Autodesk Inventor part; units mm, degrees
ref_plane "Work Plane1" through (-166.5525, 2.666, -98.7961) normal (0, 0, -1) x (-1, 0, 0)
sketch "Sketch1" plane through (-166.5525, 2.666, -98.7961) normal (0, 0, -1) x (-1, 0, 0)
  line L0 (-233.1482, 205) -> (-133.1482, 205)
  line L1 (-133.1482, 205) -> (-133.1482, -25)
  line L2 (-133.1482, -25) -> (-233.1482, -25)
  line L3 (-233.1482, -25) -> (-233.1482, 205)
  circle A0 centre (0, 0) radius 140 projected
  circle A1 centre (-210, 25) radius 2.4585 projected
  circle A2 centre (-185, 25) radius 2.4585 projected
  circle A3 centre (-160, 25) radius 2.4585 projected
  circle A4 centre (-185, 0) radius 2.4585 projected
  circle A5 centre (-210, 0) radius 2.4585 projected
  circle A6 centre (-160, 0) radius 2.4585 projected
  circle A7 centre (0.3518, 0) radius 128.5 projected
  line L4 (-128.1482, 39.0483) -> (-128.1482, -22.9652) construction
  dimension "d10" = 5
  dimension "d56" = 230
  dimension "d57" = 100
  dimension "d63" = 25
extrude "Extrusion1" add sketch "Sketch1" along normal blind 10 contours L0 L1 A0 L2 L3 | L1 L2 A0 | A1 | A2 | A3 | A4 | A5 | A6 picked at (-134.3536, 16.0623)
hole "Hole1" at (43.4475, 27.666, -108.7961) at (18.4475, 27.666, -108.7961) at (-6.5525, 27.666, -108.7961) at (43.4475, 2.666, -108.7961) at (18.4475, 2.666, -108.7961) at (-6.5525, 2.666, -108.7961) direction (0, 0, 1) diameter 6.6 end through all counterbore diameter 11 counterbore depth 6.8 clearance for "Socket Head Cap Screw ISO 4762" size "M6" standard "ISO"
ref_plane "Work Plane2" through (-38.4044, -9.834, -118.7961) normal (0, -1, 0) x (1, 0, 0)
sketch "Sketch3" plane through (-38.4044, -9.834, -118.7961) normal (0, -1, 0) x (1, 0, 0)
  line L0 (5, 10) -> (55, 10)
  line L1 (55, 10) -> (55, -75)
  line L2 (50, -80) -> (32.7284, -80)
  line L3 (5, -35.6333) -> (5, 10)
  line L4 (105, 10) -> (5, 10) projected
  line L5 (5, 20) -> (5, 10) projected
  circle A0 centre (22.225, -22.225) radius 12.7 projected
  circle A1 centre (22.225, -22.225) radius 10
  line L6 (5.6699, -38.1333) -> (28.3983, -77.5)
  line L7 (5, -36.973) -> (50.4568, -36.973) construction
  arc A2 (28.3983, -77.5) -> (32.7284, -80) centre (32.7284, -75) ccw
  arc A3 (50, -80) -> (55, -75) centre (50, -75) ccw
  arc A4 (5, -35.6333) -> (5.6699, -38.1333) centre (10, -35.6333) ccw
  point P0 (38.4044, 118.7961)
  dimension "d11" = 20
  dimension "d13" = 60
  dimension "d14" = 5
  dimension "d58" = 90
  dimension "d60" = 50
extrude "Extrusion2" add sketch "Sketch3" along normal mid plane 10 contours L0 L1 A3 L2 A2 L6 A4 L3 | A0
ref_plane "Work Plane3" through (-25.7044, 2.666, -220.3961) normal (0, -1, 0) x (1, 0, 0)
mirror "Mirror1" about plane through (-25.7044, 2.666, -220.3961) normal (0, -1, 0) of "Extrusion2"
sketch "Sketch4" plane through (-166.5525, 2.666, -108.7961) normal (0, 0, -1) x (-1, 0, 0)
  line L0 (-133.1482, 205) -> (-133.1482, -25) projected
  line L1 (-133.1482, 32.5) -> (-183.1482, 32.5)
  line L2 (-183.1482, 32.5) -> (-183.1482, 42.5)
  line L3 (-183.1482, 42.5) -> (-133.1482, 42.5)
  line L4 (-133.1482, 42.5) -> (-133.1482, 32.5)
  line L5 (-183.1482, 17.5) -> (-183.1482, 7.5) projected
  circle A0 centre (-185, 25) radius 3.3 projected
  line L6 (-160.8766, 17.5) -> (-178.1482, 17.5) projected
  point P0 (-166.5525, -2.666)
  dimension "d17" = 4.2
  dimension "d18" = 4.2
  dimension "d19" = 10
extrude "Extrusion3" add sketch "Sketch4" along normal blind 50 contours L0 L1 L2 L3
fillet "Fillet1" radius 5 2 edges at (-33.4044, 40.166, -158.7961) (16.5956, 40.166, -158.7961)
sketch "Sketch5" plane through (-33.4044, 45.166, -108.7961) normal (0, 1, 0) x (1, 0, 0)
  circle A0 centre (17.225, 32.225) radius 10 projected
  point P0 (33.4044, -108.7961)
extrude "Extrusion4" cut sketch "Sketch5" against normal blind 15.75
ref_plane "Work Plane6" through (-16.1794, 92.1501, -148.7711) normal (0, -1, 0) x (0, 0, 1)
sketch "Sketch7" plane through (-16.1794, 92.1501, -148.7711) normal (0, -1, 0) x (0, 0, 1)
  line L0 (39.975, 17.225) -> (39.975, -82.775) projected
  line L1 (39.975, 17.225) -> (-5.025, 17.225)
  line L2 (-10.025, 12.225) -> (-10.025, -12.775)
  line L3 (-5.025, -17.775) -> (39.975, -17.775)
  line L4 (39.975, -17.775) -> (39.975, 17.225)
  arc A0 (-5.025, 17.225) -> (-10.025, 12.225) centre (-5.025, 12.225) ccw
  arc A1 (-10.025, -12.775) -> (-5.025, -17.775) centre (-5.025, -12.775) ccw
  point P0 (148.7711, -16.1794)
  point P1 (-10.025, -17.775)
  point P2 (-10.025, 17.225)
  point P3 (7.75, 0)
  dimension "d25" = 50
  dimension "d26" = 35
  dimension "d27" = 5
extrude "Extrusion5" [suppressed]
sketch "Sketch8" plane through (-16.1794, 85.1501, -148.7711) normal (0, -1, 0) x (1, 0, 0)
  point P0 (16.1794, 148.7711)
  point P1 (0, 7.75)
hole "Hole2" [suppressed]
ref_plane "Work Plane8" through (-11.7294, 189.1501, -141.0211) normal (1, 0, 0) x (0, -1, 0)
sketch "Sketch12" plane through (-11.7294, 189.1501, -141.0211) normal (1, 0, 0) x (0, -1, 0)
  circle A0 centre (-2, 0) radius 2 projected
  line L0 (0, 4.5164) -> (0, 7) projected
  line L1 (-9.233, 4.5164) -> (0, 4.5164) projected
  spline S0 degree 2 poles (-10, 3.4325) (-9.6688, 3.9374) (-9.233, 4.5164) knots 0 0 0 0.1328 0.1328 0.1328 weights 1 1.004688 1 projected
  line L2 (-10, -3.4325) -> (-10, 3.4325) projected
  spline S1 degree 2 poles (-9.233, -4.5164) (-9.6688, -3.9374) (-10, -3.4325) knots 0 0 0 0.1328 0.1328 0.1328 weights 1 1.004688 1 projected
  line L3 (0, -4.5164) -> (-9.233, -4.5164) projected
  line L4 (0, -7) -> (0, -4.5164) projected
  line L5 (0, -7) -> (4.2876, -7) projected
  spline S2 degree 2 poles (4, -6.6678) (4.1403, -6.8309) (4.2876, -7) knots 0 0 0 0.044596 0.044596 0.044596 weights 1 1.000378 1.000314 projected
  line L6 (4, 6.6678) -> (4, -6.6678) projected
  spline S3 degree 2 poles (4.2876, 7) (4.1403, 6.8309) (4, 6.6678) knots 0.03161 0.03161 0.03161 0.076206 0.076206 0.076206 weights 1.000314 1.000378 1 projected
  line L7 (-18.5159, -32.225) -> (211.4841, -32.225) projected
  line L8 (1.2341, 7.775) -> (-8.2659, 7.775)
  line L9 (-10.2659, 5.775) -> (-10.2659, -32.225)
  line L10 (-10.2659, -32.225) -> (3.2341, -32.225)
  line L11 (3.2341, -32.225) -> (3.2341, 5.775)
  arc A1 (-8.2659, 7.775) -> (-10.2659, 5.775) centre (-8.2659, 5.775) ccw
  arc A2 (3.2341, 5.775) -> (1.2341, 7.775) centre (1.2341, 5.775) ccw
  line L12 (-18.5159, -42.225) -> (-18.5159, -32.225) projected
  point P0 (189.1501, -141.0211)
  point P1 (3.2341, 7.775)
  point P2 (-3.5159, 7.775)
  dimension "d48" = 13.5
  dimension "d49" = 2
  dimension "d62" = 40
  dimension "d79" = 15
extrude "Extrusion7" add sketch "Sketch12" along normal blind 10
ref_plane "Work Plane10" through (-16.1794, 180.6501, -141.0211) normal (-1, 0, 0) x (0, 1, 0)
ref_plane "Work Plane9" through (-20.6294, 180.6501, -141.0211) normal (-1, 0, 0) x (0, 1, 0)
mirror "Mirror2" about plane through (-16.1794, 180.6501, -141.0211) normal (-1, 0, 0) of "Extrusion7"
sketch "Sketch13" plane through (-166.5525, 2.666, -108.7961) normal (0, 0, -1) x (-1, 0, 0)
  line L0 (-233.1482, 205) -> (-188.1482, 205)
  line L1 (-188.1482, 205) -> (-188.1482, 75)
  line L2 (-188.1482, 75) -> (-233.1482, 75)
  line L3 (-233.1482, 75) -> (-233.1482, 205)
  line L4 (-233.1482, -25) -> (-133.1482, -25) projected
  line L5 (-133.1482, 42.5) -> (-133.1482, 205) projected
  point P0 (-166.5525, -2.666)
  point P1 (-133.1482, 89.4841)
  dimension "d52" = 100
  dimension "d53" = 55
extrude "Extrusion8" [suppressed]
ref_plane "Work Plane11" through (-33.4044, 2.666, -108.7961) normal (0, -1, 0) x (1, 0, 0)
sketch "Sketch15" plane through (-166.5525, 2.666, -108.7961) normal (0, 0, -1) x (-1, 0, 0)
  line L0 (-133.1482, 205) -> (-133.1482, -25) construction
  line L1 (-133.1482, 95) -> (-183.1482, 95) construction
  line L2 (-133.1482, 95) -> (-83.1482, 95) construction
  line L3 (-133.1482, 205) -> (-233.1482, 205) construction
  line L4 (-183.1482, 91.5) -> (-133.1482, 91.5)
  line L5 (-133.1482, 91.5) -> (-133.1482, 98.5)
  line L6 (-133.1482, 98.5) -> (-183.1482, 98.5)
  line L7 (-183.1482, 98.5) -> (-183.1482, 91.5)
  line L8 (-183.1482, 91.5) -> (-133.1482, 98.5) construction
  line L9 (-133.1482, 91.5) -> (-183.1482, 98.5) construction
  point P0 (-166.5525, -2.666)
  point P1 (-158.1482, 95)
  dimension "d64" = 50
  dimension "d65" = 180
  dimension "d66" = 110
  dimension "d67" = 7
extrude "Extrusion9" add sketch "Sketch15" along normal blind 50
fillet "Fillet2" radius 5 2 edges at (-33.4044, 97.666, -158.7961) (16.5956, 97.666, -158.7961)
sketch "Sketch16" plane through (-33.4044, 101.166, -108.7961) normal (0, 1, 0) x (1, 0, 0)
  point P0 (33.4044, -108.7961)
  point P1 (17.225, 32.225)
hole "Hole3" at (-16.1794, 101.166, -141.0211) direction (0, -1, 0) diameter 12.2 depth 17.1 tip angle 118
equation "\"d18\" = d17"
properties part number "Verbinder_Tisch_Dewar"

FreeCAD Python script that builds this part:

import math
import FreeCAD as App
import Part
import Sketcher
Q = App.Units.Quantity


def edges_at(feature, points):
    """Names of the edges that pass closest to the given points."""
    edges = feature.Shape.Edges
    near = lambda p: min(range(len(edges)), key=lambda i: edges[i].distToShape(Part.Vertex(*p))[0])
    return sorted({f"Edge{near(p) + 1}" for p in points})


def add_polygon(sketch, points):
    """Adds a closed chain of lines whose ends are joined by coincident constraints."""
    first, n = sketch.GeometryCount, len(points)
    for a, b in zip(points, points[1:] + points[:1]):
        sketch.addGeometry(Part.LineSegment(App.Vector(*a, 0), App.Vector(*b, 0)), False)
    for i in range(n):
        sketch.addConstraint(Sketcher.Constraint("Coincident", first + i, 2, first + (i + 1) % n, 1))

doc = App.newDocument("Part")
body = doc.addObject("PartDesign::Body", "Body")

# Sketch on XY plane
sketch1 = body.newObject("Sketcher::SketchObject", "Sketch")
sketch1.AttachmentSupport = (doc.getObject("XY_Plane"), [""])
sketch1.MapMode = "FlatFace"
sketch1.AttachmentOffset = App.Placement(App.Vector(0, 0, -98.7961), App.Rotation())
add_polygon(sketch1, [(-33, 208), (67, 208), (67, -22), (-33, -22)])  # lines 0-3
sketch1.addConstraint([
    Sketcher.Constraint("Horizontal", 0),
    Sketcher.Constraint("Vertical", 1),
    Sketcher.Constraint("Horizontal", 2),
    Sketcher.Constraint("Vertical", 3),
    Sketcher.Constraint("DistanceX", 0, 1, 0, 2, 100.0),
    Sketcher.Constraint("DistanceY", 1, 2, 1, 1, 230.0),
    Sketcher.Constraint("DistanceY", -1, 1, 0, 2, 207.666),
    Sketcher.Constraint("DistanceX", -1, 1, 0, 2, 66.5957),
])
pad1 = body.newObject("PartDesign::Pad", "Pad")
pad1.Profile = sketch1
pad1.Length = 10
pad1.Reversed = True

# Sketch on XY plane
sketch2 = body.newObject("Sketcher::SketchObject", "Sketch001")
sketch2.AttachmentSupport = (doc.getObject("XY_Plane"), [""])
sketch2.MapMode = "FlatFace"
sketch2.AttachmentOffset = App.Placement(App.Vector(0, 0, -108.7961), App.Rotation())
sketch2.addGeometry([
    Part.Circle(App.Vector(43.4, 27.7, 0), App.Vector(0, 0, 1), 3.3),  # 0
    Part.Circle(App.Vector(18.4, 27.7, 0), App.Vector(0, 0, 1), 3.3),  # 1
    Part.Circle(App.Vector(-6.6, 27.7, 0), App.Vector(0, 0, 1), 3.3),  # 2
    Part.Circle(App.Vector(43.4, 2.7, 0), App.Vector(0, 0, 1), 3.3),  # 3
    Part.Circle(App.Vector(18.4, 2.7, 0), App.Vector(0, 0, 1), 3.3),  # 4
    Part.Circle(App.Vector(-6.6, 2.7, 0), App.Vector(0, 0, 1), 3.3),  # 5
], False)
sketch2.addConstraint([
    Sketcher.Constraint("Equal", 0, 1),
    Sketcher.Constraint("Equal", 1, 2),
    Sketcher.Constraint("Equal", 2, 3),
    Sketcher.Constraint("Equal", 3, 4),
    Sketcher.Constraint("Equal", 4, 5),
    Sketcher.Constraint("Horizontal", 0, 3, 1, 3),
    Sketcher.Constraint("Horizontal", 1, 3, 2, 3),
    Sketcher.Constraint("Horizontal", 3, 3, 4, 3),
    Sketcher.Constraint("Horizontal", 4, 3, 5, 3),
    Sketcher.Constraint("Vertical", 0, 3, 3, 3),
    Sketcher.Constraint("Vertical", 1, 3, 4, 3),
    Sketcher.Constraint("Vertical", 2, 3, 5, 3),
    Sketcher.Constraint("Diameter", 0, 6.6),
    Sketcher.Constraint("DistanceX", 1, 3, 0, 3, 25.0),
    Sketcher.Constraint("DistanceX", 2, 3, 1, 3, 25.0),
    Sketcher.Constraint("DistanceY", 3, 3, 0, 3, 25.0),
    Sketcher.Constraint("DistanceY", -1, 1, 0, 3, 27.666),
    Sketcher.Constraint("DistanceX", -1, 1, 0, 3, 43.4475),
])
doc.recompute()
hole = body.newObject("PartDesign::Hole", "Hole")
hole.Profile = sketch2
hole.ThreadType = "None"
hole.Diameter = 6.6
hole.DepthType = "ThroughAll"
hole.HoleCutType = "Counterbore"
hole.HoleCutDiameter = 11
hole.HoleCutDepth = 6.8
hole.Reversed = True

# Sketch on XZ plane
sketch3 = body.newObject("Sketcher::SketchObject", "Sketch002")
sketch3.AttachmentSupport = (doc.getObject("XZ_Plane"), [""])
sketch3.MapMode = "FlatFace"
sketch3.AttachmentOffset = App.Placement(App.Vector(0, 0, 9.834), App.Rotation())
sketch3.addGeometry([
    Part.LineSegment(App.Vector(16.6, -108.8, 0), App.Vector(-33.4, -108.8, 0)),  # 0
    Part.LineSegment(App.Vector(-33.4, -108.8, 0), App.Vector(-33.4, -154.4, 0)),  # 1
    Part.ArcOfCircle(Part.Circle(App.Vector(-28.4, -154.4, 0), App.Vector(0, 0, 1), 5), math.radians(180), math.radians(210)),  # 2
    Part.LineSegment(App.Vector(-32.7, -156.9, 0), App.Vector(-10, -196.3, 0)),  # 3
    Part.ArcOfCircle(Part.Circle(App.Vector(-5.7, -193.8, 0), App.Vector(0, 0, 1), 5), math.radians(-150), math.radians(-90)),  # 4
    Part.LineSegment(App.Vector(-5.7, -198.8, 0), App.Vector(11.6, -198.8, 0)),  # 5
    Part.ArcOfCircle(Part.Circle(App.Vector(11.6, -193.8, 0), App.Vector(0, 0, 1), 5), math.radians(-90), math.radians(0)),  # 6
    Part.LineSegment(App.Vector(16.6, -193.8, 0), App.Vector(16.6, -108.8, 0)),  # 7
    Part.Circle(App.Vector(-16.2, -141, 0), App.Vector(0, 0, 1), 10),  # 8
], False)
sketch3.addConstraint([
    Sketcher.Constraint("Coincident", 0, 2, 1, 1),
    Sketcher.Constraint("Tangent", 1, 2, 2, 1),
    Sketcher.Constraint("Tangent", 2, 2, 3, 1),
    Sketcher.Constraint("Tangent", 3, 2, 4, 1),
    Sketcher.Constraint("Tangent", 4, 2, 5, 1),
    Sketcher.Constraint("Tangent", 5, 2, 6, 1),
    Sketcher.Constraint("Tangent", 6, 2, 7, 1),
    Sketcher.Constraint("Coincident", 7, 2, 0, 1),
    Sketcher.Constraint("Horizontal", 0),
    Sketcher.Constraint("Vertical", 1),
    Sketcher.Constraint("Horizontal", 5),
    Sketcher.Constraint("Vertical", 7),
    Sketcher.Constraint("Equal", 2, 4),
    Sketcher.Constraint("Equal", 4, 6),
    Sketcher.Constraint("Diameter", 8, 20.0),
    Sketcher.Constraint("Radius", 2, 5.0),
    Sketcher.Constraint("DistanceX", 0, 2, 0, 1, 50.0),
    Sketcher.Constraint("Angle", 3, Q("-60 deg")),
    Sketcher.Constraint("DistanceY", 7, 1, 7, 2, 85.0),
    Sketcher.Constraint("DistanceX", 5, 1, 5, 2, 17.2716),
    Sketcher.Constraint("DistanceX", 4, 3, -1, 1, 5.676),
    Sketcher.Constraint("DistanceY", 4, 3, -1, 1, 193.796),
    Sketcher.Constraint("DistanceY", 8, 3, -1, 1, 141.021),
    Sketcher.Constraint("DistanceX", 2, 3, 8, 3, 12.225),
])
pad2 = body.newObject("PartDesign::Pad", "Pad001")
pad2.Profile = sketch3
pad2.Length = 10
pad2.Midplane = True
doc.recompute()

datumplane = body.newObject("PartDesign::Plane", "DatumPlane")
datumplane.AttachmentSupport = (doc.getObject("XZ_Plane"), [""])
datumplane.MapMode = "FlatFace"
datumplane.AttachmentOffset = App.Placement(App.Vector(0, 0, -2.666), App.Rotation())
mirrored = body.newObject("PartDesign::Mirrored", "Mirrored")
mirrored.Originals = [pad2]
mirrored.MirrorPlane = (datumplane, [""])
body.Tip = mirrored

# Sketch on XY plane
sketch4 = body.newObject("Sketcher::SketchObject", "Sketch003")
sketch4.AttachmentSupport = (doc.getObject("XY_Plane"), [""])
sketch4.MapMode = "FlatFace"
sketch4.AttachmentOffset = App.Placement(App.Vector(0, 0, -108.7961), App.Rotation())
add_polygon(sketch4, [(-33, 35), (-33, 45), (17, 45), (17, 35)])  # lines 0-3
sketch4.addConstraint([
    Sketcher.Constraint("Vertical", 0),
    Sketcher.Constraint("Horizontal", 1),
    Sketcher.Constraint("Vertical", 2),
    Sketcher.Constraint("Horizontal", 3),
    Sketcher.Constraint("DistanceY", 0, 1, 0, 2, 10.0),
    Sketcher.Constraint("DistanceX", 1, 1, 1, 2, 50.0),
    Sketcher.Constraint("DistanceY", -1, 1, 0, 2, 45.166),
    Sketcher.Constraint("DistanceX", 0, 2, -1, 1, 33.4043),
])
pad3 = body.newObject("PartDesign::Pad", "Pad002")
pad3.Profile = sketch4
pad3.Length = 50
pad3.Reversed = True
doc.recompute()

fillet = body.newObject("PartDesign::Fillet", "Fillet")
fillet.Base = (pad3, edges_at(pad3, [(-33.404, 40.166, -158.796), (16.596, 40.166, -158.796)]))
fillet.Radius = 5

# Sketch on XZ plane
sketch5 = body.newObject("Sketcher::SketchObject", "Sketch004")
sketch5.AttachmentSupport = (doc.getObject("XZ_Plane"), [""])
sketch5.MapMode = "FlatFace"
sketch5.AttachmentOffset = App.Placement(App.Vector(0, 0, -45.166), App.Rotation())
sketch5.addGeometry(Part.Circle(App.Vector(-16, -141, 0), App.Vector(0, 0, 1), 10), False)
sketch5.addConstraint([
    Sketcher.Constraint("Diameter", 0, 20.0),
    Sketcher.Constraint("DistanceY", 0, 3, -1, 1, 141.021),
    Sketcher.Constraint("DistanceX", 0, 3, -1, 1, 16.1794),
])
pocket1 = body.newObject("PartDesign::Pocket", "Pocket")
pocket1.Profile = sketch5
pocket1.Length = 15.75
pocket1.Reversed = True

# Sketch on YZ plane
sketch6 = body.newObject("Sketcher::SketchObject", "Sketch005")
sketch6.AttachmentSupport = (doc.getObject("YZ_Plane"), [""])
sketch6.MapMode = "FlatFace"
sketch6.AttachmentOffset = App.Placement(App.Vector(0, 0, -11.7294), App.Rotation())
sketch6.addGeometry([
    Part.LineSegment(App.Vector(199.4, -146.8, 0), App.Vector(199.4, -108.8, 0)),  # 0
    Part.LineSegment(App.Vector(199.4, -108.8, 0), App.Vector(185.9, -108.8, 0)),  # 1
    Part.LineSegment(App.Vector(185.9, -108.8, 0), App.Vector(185.9, -146.8, 0)),  # 2
    Part.ArcOfCircle(Part.Circle(App.Vector(187.9, -146.8, 0), App.Vector(0, 0, 1), 2), math.radians(180), math.radians(270)),  # 3
    Part.LineSegment(App.Vector(187.9, -148.8, 0), App.Vector(197.4, -148.8, 0)),  # 4
    Part.ArcOfCircle(Part.Circle(App.Vector(197.4, -146.8, 0), App.Vector(0, 0, 1), 2), math.radians(-90), math.radians(0)),  # 5
    Part.Circle(App.Vector(191.2, -141, 0), App.Vector(0, 0, 1), 2),  # 6
], False)
sketch6.addConstraint([
    Sketcher.Constraint("Coincident", 0, 2, 1, 1),
    Sketcher.Constraint("Coincident", 1, 2, 2, 1),
    Sketcher.Constraint("Tangent", 2, 2, 3, 1),
    Sketcher.Constraint("Tangent", 3, 2, 4, 1),
    Sketcher.Constraint("Tangent", 4, 2, 5, 1),
    Sketcher.Constraint("Tangent", 5, 2, 0, 1),
    Sketcher.Constraint("Vertical", 0),
    Sketcher.Constraint("Horizontal", 1),
    Sketcher.Constraint("Vertical", 2),
    Sketcher.Constraint("Horizontal", 4),
    Sketcher.Constraint("Equal", 3, 5),
    Sketcher.Constraint("Equal", 5, 6),
    Sketcher.Constraint("Diameter", 6, 4.0),
    Sketcher.Constraint("DistanceX", 1, 2, 1, 1, 13.5),
    Sketcher.Constraint("DistanceY", 3, 2, 1, 2, 40.0),
    Sketcher.Constraint("DistanceX", -1, 1, 6, 3, 191.15),
    Sketcher.Constraint("DistanceX", -1, 1, 3, 3, 187.916),
    Sketcher.Constraint("DistanceY", 3, 3, -1, 1, 146.796),
    Sketcher.Constraint("DistanceY", 6, 3, -1, 1, 141.021),
])
pad4 = body.newObject("PartDesign::Pad", "Pad003")
pad4.Profile = sketch6
pad4.Length = 10
doc.recompute()

datumplane2 = body.newObject("PartDesign::Plane", "DatumPlane001")
datumplane2.AttachmentSupport = (doc.getObject("YZ_Plane"), [""])
datumplane2.MapMode = "FlatFace"
datumplane2.AttachmentOffset = App.Placement(App.Vector(0, 0, -16.1794), App.Rotation())
mirrored2 = body.newObject("PartDesign::Mirrored", "Mirrored001")
mirrored2.Originals = [pad4]
mirrored2.MirrorPlane = (datumplane2, [""])
body.Tip = mirrored2

# Sketch on XY plane
sketch7 = body.newObject("Sketcher::SketchObject", "Sketch006")
sketch7.AttachmentSupport = (doc.getObject("XY_Plane"), [""])
sketch7.MapMode = "FlatFace"
sketch7.AttachmentOffset = App.Placement(App.Vector(0, 0, -108.7961), App.Rotation())
add_polygon(sketch7, [(17, 101), (17, 94), (-33, 94), (-33, 101)])  # lines 0-3
sketch7.addConstraint([
    Sketcher.Constraint("Vertical", 0),
    Sketcher.Constraint("Horizontal", 1),
    Sketcher.Constraint("Vertical", 2),
    Sketcher.Constraint("Horizontal", 3),
    Sketcher.Constraint("DistanceX", 1, 2, 1, 1, 50.0),
    Sketcher.Constraint("DistanceY", 0, 2, 0, 1, 7.0),
    Sketcher.Constraint("DistanceY", -1, 1, 0, 2, 94.166),
    Sketcher.Constraint("DistanceX", -1, 1, 0, 2, 16.5957),
])
pad5 = body.newObject("PartDesign::Pad", "Pad004")
pad5.Profile = sketch7
pad5.Length = 50
pad5.Reversed = True
doc.recompute()

fillet2 = body.newObject("PartDesign::Fillet", "Fillet001")
fillet2.Base = (pad5, edges_at(pad5, [(-33.404, 97.666, -158.796), (16.596, 97.666, -158.796)]))
fillet2.Radius = 5

# Sketch on XZ plane
sketch8 = body.newObject("Sketcher::SketchObject", "Sketch007")
sketch8.AttachmentSupport = (doc.getObject("XZ_Plane"), [""])
sketch8.MapMode = "FlatFace"
sketch8.AttachmentOffset = App.Placement(App.Vector(0, 0, -101.166), App.Rotation())
sketch8.addGeometry(Part.Circle(App.Vector(-16, -141, 0), App.Vector(0, 0, 1), 6), False)
sketch8.addConstraint([
    Sketcher.Constraint("Diameter", 0, 12.2),
    Sketcher.Constraint("DistanceY", 0, 3, -1, 1, 141.021),
    Sketcher.Constraint("DistanceX", 0, 3, -1, 1, 16.1794),
])
doc.recompute()
hole2 = body.newObject("PartDesign::Hole", "Hole001")
hole2.Profile = sketch8
hole2.ThreadType = "None"
hole2.Diameter = 12.2
hole2.DepthType = "Dimension"
hole2.Depth = 17.1
hole2.DrillPoint = "Angled"
hole2.DrillPointAngle = 118
hole2.Reversed = True

doc.recompute()
